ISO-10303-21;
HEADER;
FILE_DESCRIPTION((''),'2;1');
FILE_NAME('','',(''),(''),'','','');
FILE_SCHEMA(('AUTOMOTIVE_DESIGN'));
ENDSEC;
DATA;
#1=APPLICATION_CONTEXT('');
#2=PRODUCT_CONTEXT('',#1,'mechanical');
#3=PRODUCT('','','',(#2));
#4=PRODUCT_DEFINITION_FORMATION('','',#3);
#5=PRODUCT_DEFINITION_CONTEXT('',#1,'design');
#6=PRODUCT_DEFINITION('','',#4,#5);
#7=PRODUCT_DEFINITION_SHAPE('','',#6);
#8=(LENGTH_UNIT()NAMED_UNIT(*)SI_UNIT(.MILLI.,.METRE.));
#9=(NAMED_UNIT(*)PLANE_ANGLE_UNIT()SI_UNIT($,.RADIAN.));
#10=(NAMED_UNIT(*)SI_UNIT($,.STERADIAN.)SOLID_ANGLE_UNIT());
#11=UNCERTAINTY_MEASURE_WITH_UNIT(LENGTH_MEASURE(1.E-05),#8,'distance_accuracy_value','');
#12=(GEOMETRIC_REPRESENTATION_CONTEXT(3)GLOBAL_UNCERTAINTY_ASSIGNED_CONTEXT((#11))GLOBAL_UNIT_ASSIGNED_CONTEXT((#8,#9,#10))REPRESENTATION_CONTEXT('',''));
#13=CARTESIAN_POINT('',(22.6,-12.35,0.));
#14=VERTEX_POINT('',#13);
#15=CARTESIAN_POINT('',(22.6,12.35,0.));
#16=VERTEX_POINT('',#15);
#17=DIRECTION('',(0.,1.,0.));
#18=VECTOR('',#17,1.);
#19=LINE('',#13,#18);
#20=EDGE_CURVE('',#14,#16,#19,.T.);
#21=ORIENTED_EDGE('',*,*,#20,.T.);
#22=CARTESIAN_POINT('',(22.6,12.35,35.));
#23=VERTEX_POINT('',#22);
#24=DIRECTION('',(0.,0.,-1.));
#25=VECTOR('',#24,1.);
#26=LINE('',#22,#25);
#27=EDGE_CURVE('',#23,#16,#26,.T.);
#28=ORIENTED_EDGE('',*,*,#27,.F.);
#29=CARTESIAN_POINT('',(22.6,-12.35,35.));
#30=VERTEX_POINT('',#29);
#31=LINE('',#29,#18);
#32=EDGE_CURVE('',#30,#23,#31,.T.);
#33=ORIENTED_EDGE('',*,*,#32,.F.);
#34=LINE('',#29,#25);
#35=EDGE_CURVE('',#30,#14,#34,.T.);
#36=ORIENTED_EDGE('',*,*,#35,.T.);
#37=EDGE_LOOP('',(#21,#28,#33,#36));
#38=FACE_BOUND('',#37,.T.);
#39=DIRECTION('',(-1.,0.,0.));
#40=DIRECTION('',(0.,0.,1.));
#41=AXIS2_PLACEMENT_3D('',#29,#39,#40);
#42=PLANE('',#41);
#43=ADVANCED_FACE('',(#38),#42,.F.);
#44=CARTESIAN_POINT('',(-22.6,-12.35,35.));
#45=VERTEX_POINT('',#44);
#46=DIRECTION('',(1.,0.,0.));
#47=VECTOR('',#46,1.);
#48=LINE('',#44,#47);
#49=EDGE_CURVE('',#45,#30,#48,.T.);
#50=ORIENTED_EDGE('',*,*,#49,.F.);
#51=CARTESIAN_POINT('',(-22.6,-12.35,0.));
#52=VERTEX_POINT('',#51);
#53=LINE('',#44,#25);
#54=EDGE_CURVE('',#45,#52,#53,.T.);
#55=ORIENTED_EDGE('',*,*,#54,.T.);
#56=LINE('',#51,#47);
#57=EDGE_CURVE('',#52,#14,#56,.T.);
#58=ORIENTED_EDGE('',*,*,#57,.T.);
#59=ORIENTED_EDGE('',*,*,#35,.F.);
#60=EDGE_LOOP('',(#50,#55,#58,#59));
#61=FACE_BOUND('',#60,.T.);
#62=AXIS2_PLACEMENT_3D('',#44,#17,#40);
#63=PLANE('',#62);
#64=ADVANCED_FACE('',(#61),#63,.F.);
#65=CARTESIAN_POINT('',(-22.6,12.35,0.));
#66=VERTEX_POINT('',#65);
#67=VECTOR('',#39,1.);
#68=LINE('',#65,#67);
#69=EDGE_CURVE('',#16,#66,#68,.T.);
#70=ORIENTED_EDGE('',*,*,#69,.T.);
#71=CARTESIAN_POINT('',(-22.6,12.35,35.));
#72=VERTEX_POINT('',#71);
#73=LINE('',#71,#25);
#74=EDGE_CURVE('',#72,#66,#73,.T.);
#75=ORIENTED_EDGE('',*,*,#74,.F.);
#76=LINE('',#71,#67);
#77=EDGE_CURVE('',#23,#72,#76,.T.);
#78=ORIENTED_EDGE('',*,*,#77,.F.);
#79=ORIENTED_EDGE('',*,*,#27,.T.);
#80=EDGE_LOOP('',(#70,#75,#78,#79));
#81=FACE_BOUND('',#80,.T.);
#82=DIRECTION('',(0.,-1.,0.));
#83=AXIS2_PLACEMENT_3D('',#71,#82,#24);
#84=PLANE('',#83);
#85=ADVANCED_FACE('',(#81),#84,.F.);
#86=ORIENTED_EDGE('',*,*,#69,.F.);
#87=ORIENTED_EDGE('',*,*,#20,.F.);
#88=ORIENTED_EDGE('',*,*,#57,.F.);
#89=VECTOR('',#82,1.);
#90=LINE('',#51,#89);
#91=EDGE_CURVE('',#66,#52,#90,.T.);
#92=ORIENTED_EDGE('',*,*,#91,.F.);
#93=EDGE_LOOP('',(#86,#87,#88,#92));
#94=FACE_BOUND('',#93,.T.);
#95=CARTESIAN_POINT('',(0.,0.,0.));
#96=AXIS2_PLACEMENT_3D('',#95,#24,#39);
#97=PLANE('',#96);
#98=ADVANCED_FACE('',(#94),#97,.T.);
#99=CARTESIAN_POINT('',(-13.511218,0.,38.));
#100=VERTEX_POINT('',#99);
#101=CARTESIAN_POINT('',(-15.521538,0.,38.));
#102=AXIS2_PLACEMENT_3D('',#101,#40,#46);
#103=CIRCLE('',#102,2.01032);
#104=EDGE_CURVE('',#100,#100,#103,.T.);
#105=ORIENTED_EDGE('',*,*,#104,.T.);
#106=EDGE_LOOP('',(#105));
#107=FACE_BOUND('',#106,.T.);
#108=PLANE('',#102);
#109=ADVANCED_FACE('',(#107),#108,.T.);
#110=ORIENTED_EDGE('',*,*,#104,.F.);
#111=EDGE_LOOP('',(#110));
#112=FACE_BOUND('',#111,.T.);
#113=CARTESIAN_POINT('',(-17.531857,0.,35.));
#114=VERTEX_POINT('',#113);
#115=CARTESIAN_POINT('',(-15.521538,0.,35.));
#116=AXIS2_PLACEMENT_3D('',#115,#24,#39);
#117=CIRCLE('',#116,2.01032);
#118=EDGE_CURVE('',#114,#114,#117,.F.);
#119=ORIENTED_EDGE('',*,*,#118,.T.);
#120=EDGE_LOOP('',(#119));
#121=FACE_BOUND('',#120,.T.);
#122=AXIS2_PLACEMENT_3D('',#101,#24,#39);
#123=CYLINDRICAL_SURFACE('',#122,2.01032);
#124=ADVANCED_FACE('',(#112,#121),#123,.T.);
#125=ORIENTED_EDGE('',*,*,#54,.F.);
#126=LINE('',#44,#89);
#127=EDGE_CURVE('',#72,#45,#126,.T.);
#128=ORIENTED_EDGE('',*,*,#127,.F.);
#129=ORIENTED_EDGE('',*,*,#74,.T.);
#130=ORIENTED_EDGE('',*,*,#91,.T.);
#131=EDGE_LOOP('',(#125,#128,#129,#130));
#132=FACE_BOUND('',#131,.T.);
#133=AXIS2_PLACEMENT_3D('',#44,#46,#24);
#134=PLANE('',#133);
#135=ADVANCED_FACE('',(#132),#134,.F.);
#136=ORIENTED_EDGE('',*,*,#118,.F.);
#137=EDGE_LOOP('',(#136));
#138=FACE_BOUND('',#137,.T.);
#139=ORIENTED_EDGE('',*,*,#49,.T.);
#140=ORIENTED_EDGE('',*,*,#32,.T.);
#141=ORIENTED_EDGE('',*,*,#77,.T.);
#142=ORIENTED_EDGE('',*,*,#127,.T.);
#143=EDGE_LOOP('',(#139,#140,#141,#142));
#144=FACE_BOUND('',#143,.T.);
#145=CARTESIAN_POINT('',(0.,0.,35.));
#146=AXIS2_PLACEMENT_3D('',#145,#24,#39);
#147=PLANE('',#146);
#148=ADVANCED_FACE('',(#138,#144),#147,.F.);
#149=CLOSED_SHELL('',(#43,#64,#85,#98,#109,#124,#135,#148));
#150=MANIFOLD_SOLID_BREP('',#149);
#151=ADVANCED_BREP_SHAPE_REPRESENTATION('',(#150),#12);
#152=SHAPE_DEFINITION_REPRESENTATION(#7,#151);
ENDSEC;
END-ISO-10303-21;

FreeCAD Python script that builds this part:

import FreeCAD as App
import Part
import Sketcher

V = App.Vector
Q = App.Units.Quantity

doc = App.newDocument("Part")
params = doc.addObject("Spreadsheet::Sheet", "Params")
for row, (alias, value) in enumerate([
    ("sketch1_width", "45.2 mm"),
    ("sketch1_height", "24.7 mm"),
    ("pad1_length", "35 mm"),
    ("pad2_length", "3 mm"),
], start=1):
    params.set(f"A{row}", alias)
    params.set(f"B{row}", "=" + value)
    params.setAlias(f"B{row}", alias)

body = doc.addObject("PartDesign::Body", "Body")

# Sketch on XY plane
sketch1 = body.newObject("Sketcher::SketchObject", "Sketch")
sketch1.AttachmentSupport = (doc.getObject("XY_Plane"), [""])
sketch1.MapMode = "FlatFace"
sketch1.addGeometry([
    Part.LineSegment(V(-23, 12, 0), V(-23, -12, 0)),
    Part.LineSegment(V(-23, -12, 0), V(23, -12, 0)),
    Part.LineSegment(V(23, -12, 0), V(23, 12, 0)),
    Part.LineSegment(V(23, 12, 0), V(-23, 12, 0)),
], False)
sketch1.addConstraint([
    Sketcher.Constraint("Coincident", 0, 2, 1, 1),
    Sketcher.Constraint("Coincident", 1, 2, 2, 1),
    Sketcher.Constraint("Coincident", 2, 2, 3, 1),
    Sketcher.Constraint("Coincident", 3, 2, 0, 1),
    Sketcher.Constraint("Vertical", 0),
    Sketcher.Constraint("Horizontal", 1),
    Sketcher.Constraint("Vertical", 2),
    Sketcher.Constraint("Horizontal", 3),
    Sketcher.Constraint("Symmetric", 0, 2, 2, 2, -1, 1),
    Sketcher.Constraint("DistanceX", 1, 1, 1, 2, Q("45.2 mm")),
    Sketcher.Constraint("DistanceY", 0, 2, 0, 1, Q("24.7 mm")),
])
sketch1.setExpression("Constraints[9]", "Params.sketch1_width")
sketch1.setExpression("Constraints[10]", "Params.sketch1_height")
pad1 = body.newObject("PartDesign::Pad", "Pad")
pad1.Profile = sketch1
pad1.setExpression("Length", "Params.pad1_length")

# Sketch on XY plane
sketch2 = body.newObject("Sketcher::SketchObject", "Sketch001")
sketch2.AttachmentSupport = (doc.getObject("XY_Plane"), [""])
sketch2.MapMode = "FlatFace"
sketch2.AttachmentOffset = App.Placement(V(0, 0, 35), App.Rotation())
sketch2.addGeometry(Part.Circle(V(-15.5, 0, 0), V(0, 0, 1), 2), False)
sketch2.addConstraint([
    Sketcher.Constraint("PointOnObject", 0, 3, -1),
    Sketcher.Constraint("Diameter", 0, Q("4.020639 mm")),
    Sketcher.Constraint("DistanceX", 0, 3, -1, 1, Q("15.521538 mm")),
])
pad2 = body.newObject("PartDesign::Pad", "Pad001")
pad2.Profile = sketch2
pad2.setExpression("Length", "Params.pad2_length")

doc.recompute()
